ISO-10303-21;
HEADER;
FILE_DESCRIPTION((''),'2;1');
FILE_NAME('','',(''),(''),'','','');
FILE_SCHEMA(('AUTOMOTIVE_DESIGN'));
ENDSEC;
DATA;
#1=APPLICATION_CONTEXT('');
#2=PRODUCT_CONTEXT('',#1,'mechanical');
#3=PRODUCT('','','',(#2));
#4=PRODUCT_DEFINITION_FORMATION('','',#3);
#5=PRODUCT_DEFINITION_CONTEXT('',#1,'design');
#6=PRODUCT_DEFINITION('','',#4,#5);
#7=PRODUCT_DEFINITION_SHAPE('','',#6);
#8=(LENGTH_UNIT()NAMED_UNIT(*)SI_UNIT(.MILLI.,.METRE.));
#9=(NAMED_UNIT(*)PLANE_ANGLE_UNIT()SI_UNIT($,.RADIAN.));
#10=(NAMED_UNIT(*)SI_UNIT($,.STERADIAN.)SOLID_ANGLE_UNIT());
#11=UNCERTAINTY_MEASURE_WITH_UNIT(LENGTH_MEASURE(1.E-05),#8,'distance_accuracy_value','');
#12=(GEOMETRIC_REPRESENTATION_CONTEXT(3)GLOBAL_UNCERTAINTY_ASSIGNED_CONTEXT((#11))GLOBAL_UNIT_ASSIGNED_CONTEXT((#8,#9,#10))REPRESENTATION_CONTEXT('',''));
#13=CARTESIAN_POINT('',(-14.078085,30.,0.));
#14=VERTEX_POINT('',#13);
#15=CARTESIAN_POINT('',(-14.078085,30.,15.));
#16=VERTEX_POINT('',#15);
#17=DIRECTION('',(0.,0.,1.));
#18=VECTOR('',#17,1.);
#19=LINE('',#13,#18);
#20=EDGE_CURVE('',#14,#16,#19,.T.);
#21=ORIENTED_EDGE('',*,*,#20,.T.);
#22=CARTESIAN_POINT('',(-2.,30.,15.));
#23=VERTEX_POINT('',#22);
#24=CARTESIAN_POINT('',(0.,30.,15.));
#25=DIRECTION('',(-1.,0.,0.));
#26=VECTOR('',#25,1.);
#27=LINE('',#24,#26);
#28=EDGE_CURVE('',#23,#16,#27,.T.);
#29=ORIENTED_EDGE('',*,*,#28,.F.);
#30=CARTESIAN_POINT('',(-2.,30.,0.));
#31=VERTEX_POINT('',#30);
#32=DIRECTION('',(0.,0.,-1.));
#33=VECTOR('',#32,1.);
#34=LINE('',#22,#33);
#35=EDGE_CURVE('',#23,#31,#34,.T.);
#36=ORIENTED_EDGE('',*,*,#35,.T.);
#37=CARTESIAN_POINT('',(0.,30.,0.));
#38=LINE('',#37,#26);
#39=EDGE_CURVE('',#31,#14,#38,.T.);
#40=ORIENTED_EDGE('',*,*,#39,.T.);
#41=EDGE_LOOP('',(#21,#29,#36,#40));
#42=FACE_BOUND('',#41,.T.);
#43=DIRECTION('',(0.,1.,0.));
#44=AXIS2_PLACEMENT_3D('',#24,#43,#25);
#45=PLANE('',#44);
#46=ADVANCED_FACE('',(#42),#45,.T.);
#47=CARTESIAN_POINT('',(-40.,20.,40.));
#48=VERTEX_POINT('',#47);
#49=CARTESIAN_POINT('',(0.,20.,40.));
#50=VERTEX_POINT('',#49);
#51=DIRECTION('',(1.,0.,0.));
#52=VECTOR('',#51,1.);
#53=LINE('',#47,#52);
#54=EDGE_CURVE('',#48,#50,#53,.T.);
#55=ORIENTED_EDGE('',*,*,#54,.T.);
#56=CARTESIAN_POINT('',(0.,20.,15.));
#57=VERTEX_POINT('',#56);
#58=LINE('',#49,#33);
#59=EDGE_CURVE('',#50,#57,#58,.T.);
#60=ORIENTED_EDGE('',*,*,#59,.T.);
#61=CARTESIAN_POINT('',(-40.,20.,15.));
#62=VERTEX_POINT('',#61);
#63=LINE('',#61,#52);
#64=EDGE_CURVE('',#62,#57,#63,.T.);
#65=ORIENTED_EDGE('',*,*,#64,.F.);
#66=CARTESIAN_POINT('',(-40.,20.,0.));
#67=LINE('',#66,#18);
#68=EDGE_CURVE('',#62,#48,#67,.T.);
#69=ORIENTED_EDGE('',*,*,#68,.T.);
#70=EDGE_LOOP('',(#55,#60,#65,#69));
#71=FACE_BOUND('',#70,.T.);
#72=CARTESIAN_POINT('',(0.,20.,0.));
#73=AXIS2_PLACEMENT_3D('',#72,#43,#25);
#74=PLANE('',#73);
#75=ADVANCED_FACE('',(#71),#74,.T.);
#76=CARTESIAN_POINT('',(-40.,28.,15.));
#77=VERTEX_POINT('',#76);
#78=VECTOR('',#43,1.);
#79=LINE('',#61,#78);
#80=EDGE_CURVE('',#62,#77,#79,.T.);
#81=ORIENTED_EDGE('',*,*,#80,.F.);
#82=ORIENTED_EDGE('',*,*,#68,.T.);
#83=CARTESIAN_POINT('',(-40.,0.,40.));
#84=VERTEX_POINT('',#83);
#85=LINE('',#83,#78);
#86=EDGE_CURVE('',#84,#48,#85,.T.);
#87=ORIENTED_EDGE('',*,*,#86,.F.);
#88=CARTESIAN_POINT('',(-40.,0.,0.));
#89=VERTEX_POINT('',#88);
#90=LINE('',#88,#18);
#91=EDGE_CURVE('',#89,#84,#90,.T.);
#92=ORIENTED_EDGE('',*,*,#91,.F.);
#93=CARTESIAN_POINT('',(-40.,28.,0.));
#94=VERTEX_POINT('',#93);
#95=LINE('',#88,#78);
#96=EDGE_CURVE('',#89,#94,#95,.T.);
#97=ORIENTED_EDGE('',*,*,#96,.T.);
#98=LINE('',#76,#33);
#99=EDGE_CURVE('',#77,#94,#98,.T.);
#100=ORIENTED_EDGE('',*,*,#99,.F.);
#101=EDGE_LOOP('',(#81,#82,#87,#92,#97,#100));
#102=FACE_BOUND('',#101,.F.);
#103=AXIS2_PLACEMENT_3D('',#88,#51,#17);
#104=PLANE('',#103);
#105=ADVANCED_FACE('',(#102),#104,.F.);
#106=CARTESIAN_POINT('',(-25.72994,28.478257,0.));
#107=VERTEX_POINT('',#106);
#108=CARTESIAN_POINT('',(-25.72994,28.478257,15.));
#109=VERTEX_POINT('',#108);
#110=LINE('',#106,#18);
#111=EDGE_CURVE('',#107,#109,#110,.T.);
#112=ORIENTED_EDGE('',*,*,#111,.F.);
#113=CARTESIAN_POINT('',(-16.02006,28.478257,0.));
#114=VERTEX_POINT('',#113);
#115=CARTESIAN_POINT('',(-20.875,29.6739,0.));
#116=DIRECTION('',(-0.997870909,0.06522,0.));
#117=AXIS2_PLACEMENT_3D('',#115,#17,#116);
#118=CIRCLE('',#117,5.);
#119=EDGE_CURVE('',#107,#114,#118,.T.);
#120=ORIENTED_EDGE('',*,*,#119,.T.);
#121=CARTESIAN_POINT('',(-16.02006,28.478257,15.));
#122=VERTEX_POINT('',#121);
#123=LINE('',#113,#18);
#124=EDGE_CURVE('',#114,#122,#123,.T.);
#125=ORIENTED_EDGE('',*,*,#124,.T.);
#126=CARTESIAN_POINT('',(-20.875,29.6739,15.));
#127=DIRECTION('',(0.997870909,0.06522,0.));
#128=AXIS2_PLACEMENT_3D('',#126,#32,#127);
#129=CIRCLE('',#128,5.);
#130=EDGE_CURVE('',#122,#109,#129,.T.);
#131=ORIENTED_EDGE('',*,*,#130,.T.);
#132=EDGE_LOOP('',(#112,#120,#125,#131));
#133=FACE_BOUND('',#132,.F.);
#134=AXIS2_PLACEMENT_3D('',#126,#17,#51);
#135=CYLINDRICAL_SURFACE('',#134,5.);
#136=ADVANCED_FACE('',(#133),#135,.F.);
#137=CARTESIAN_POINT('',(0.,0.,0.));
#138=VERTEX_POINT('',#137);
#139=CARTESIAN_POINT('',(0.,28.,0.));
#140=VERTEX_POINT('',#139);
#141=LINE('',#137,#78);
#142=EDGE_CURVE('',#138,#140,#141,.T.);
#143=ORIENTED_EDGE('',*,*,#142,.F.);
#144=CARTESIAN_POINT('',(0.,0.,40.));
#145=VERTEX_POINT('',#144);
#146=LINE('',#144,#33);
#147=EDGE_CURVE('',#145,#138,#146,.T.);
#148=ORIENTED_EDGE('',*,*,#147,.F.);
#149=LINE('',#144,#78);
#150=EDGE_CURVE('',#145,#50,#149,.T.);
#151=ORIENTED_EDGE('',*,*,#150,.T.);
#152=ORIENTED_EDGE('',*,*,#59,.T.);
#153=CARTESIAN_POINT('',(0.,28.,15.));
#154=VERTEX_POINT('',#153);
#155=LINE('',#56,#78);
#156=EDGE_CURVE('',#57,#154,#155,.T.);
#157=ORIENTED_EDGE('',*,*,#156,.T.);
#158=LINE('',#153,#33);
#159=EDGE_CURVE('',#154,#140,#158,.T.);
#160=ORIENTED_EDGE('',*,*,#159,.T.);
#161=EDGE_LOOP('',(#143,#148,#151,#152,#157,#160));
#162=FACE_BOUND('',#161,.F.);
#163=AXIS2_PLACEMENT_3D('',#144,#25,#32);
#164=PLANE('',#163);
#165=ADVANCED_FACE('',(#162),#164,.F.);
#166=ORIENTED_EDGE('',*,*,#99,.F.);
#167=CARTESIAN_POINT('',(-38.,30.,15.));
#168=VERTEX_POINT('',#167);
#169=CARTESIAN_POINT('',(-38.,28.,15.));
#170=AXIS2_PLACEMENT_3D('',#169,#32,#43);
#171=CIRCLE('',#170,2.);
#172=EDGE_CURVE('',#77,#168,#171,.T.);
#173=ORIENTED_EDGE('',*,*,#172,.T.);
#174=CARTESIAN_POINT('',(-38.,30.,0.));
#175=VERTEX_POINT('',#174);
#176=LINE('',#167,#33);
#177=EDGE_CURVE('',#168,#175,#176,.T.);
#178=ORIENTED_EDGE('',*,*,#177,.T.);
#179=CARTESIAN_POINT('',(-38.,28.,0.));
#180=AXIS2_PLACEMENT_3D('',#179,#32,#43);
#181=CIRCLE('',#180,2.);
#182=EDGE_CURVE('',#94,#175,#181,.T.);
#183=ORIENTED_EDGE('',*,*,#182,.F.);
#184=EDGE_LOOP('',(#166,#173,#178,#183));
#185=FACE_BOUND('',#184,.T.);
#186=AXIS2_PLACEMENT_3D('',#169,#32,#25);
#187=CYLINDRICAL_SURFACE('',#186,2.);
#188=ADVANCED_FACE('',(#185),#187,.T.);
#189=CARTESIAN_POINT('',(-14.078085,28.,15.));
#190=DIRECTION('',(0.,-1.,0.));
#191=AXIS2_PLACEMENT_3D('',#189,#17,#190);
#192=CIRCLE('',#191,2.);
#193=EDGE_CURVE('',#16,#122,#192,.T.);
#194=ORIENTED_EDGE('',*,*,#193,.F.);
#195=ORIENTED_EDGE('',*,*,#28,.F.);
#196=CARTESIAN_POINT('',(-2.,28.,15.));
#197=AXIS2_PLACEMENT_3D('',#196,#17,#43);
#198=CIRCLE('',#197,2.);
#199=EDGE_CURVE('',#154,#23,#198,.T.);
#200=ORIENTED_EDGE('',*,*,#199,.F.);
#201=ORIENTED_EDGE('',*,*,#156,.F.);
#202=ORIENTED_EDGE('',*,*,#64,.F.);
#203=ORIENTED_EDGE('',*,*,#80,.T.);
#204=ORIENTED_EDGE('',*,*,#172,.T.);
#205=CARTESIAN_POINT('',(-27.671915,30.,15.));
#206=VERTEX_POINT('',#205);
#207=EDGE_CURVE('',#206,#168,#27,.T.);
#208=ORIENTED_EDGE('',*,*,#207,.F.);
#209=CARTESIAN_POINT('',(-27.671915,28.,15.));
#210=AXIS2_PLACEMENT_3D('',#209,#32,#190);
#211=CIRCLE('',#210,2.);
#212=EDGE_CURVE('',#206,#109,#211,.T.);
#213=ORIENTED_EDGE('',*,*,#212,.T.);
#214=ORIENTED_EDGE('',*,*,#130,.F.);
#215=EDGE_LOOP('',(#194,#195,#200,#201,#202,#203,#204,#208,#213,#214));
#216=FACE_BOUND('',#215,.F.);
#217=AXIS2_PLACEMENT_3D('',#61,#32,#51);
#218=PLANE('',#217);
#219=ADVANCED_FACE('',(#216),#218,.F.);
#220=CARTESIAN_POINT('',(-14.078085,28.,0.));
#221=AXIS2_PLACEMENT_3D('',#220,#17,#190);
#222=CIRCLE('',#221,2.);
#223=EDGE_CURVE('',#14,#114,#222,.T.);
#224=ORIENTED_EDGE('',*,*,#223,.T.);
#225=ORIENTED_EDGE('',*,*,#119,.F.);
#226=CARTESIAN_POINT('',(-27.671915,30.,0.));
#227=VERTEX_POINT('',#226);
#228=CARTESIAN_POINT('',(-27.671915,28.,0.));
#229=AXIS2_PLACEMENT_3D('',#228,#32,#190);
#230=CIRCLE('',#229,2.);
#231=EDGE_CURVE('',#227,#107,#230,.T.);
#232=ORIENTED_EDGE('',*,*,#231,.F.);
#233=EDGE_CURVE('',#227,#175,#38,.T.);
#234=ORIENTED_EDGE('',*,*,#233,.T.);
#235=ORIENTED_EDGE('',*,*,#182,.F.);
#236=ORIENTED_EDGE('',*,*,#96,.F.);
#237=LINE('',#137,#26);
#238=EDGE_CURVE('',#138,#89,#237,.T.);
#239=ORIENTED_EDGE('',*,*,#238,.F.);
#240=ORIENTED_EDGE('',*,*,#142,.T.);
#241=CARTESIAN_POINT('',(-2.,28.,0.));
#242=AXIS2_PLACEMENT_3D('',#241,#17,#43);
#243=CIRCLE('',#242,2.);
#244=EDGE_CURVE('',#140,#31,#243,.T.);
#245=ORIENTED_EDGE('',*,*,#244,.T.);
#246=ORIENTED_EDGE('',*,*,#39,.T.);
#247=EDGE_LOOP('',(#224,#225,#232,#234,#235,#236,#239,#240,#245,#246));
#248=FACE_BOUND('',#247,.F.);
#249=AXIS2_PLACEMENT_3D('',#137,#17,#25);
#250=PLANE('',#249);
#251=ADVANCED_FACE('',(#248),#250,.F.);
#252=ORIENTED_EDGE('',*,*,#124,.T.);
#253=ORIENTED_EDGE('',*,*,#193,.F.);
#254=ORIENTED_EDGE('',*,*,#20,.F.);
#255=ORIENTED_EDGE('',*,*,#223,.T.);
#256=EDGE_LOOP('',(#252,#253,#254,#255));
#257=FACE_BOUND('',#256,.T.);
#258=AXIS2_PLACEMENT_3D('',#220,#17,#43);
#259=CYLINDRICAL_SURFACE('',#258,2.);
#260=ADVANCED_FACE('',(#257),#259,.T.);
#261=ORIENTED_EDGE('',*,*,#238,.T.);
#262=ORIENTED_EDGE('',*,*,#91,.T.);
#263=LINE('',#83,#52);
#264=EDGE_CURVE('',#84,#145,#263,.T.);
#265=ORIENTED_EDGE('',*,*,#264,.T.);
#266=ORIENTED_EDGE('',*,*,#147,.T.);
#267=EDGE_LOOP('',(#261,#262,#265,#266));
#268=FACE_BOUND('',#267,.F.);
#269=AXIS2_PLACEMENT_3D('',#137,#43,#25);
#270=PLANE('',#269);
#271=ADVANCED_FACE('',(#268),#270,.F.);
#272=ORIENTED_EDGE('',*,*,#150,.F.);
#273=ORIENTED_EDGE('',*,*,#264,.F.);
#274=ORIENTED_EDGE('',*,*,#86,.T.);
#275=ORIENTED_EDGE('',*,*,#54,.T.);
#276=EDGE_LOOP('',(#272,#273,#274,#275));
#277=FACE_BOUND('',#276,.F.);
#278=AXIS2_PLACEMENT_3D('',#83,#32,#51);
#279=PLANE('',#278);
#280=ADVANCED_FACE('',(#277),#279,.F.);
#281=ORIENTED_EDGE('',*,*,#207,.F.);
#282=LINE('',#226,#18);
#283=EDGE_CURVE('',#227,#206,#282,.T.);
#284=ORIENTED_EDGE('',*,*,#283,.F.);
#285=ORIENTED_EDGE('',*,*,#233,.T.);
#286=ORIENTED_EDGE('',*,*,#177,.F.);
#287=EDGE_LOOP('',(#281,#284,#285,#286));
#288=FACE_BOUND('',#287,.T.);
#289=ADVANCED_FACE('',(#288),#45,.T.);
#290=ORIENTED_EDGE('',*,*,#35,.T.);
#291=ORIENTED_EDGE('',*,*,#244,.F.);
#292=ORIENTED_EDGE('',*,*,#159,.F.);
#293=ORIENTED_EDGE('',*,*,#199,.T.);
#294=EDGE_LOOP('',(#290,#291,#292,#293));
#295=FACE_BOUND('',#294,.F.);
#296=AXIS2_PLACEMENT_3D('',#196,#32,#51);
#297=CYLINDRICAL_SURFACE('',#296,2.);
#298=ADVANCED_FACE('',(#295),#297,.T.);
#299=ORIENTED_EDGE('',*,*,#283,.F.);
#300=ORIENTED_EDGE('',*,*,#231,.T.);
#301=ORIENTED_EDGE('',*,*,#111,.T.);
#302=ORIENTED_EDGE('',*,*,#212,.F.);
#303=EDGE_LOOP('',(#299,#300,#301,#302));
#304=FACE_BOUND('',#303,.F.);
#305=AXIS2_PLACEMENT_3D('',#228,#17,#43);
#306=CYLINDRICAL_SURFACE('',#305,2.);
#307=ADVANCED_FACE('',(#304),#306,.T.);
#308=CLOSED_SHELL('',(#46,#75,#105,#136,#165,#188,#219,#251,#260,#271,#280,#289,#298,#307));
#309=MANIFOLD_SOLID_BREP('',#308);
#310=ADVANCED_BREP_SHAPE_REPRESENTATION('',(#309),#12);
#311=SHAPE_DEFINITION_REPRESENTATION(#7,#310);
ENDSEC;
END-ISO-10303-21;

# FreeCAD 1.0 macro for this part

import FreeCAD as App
import Part
import Sketcher

V = App.Vector
Q = App.Units.Quantity


def edges_at(feature, points):
    """Names of the edges that pass closest to the given points."""
    edges = feature.Shape.Edges
    near = lambda p: min(range(len(edges)), key=lambda i: edges[i].distToShape(Part.Vertex(*p))[0])
    return sorted({f"Edge{near(p) + 1}" for p in points})


def add_polygon(sketch, points):
    """Adds a closed chain of lines whose ends are joined by coincident constraints."""
    first, n = sketch.GeometryCount, len(points)
    for a, b in zip(points, points[1:] + points[:1]):
        sketch.addGeometry(Part.LineSegment(App.Vector(*a, 0), App.Vector(*b, 0)), False)
    for i in range(n):
        sketch.addConstraint(Sketcher.Constraint("Coincident", first + i, 2, first + (i + 1) % n, 1))

doc = App.newDocument("Part")
params = doc.addObject("Spreadsheet::Sheet", "Params")
for row, (alias, value) in enumerate([
    ("sketch1_width", "40 mm"),
    ("pad1_length", "20 mm"),
    ("sketch2_height", "15 mm"),
    ("sketch2_width", "40 mm"),
    ("pad2_length", "20 mm"),
    ("sketch3_diameter", "10 mm"),
    ("pocket1_length", "20 mm"),
    ("sketch4_height", "10 mm"),
    ("sketch4_width", "40 mm"),
    ("pocket2_length", "20 mm"),
    ("fillet_radius", "2 mm"),
], start=1):
    params.set(f"A{row}", alias)
    params.set(f"B{row}", "=" + value)
    params.setAlias(f"B{row}", alias)

body = doc.addObject("PartDesign::Body", "Body")

sketch1 = body.newObject("Sketcher::SketchObject", "Sketch")
sketch1.AttachmentSupport = (doc.getObject("XZ_Plane"), [""])
sketch1.MapMode = "FlatFace"
add_polygon(sketch1, [(0, 40), (0, 0), (-40, 0), (-40, 40)])
sketch1.addConstraint([
    Sketcher.Constraint("Vertical", 0),
    Sketcher.Constraint("Horizontal", 1),
    Sketcher.Constraint("Vertical", 2),
    Sketcher.Constraint("Horizontal", 3),
    Sketcher.Constraint("Coincident", 0, 2, -1, 1),
    Sketcher.Constraint("Equal", 3, 0),
    Sketcher.Constraint("DistanceX", 1, 2, 1, 1, Q("40 mm")),
])
sketch1.setExpression("Constraints[10]", "Params.sketch1_width")
pad1 = body.newObject("PartDesign::Pad", "Pad")
pad1.Profile = sketch1
pad1.setExpression("Length", "Params.pad1_length")
pad1.Reversed = True

sketch2 = body.newObject("Sketcher::SketchObject", "Sketch001")
sketch2.AttachmentSupport = (doc.getObject("XZ_Plane"), [""])
sketch2.MapMode = "FlatFace"
sketch2.AttachmentOffset = App.Placement(V(0, 0, -20), App.Rotation())
add_polygon(sketch2, [(-40, 15), (0, 15), (0, 0), (-40, 0)])
sketch2.addConstraint([
    Sketcher.Constraint("Horizontal", 0),
    Sketcher.Constraint("Vertical", 1),
    Sketcher.Constraint("Horizontal", 2),
    Sketcher.Constraint("Vertical", 3),
    Sketcher.Constraint("Coincident", 1, 2, -1, 1),
    Sketcher.Constraint("DistanceY", 1, 2, 1, 1, Q("15 mm")),
    Sketcher.Constraint("DistanceX", 0, 1, 0, 2, Q("40 mm")),
])
sketch2.setExpression("Constraints[9]", "Params.sketch2_height")
sketch2.setExpression("Constraints[10]", "Params.sketch2_width")
pad2 = body.newObject("PartDesign::Pad", "Pad001")
pad2.Profile = sketch2
pad2.setExpression("Length", "Params.pad2_length")
pad2.Reversed = True

sketch3 = body.newObject("Sketcher::SketchObject", "Sketch002")
sketch3.AttachmentSupport = (doc.getObject("XY_Plane"), [""])
sketch3.MapMode = "FlatFace"
sketch3.AttachmentOffset = App.Placement(V(0, 0, 15), App.Rotation())
sketch3.addGeometry(Part.Circle(V(-21, 30, 0), V(0, 0, 1), 5), False)
sketch3.addConstraint([
    Sketcher.Constraint("Diameter", 0, Q("10 mm")),
    Sketcher.Constraint("DistanceX", 0, 3, -1, 1, Q("20.875 mm")),
    Sketcher.Constraint("DistanceY", -1, 1, 0, 3, Q("29.674 mm")),
])
sketch3.setExpression("Constraints[0]", "Params.sketch3_diameter")
pocket1 = body.newObject("PartDesign::Pocket", "Pocket")
pocket1.Profile = sketch3
pocket1.setExpression("Length", "Params.pocket1_length")

sketch4 = body.newObject("Sketcher::SketchObject", "Sketch003")
sketch4.AttachmentSupport = (doc.getObject("XY_Plane"), [""])
sketch4.MapMode = "FlatFace"
sketch4.AttachmentOffset = App.Placement(V(0, 0, 15), App.Rotation())
add_polygon(sketch4, [(0, 30), (0, 40), (-40, 40), (-40, 30)])
sketch4.addConstraint([
    Sketcher.Constraint("Vertical", 0),
    Sketcher.Constraint("Horizontal", 1),
    Sketcher.Constraint("Vertical", 2),
    Sketcher.Constraint("Horizontal", 3),
    Sketcher.Constraint("PointOnObject", 0, 2, -2),
    Sketcher.Constraint("DistanceY", 0, 1, 0, 2, Q("10 mm")),
    Sketcher.Constraint("DistanceX", 1, 2, 1, 1, Q("40 mm")),
    Sketcher.Constraint("DistanceY", -1, 1, 0, 2, Q("40 mm")),
])
sketch4.setExpression("Constraints[9]", "Params.sketch4_height")
sketch4.setExpression("Constraints[10]", "Params.sketch4_width")
pocket2 = body.newObject("PartDesign::Pocket", "Pocket001")
pocket2.Profile = sketch4
pocket2.setExpression("Length", "Params.pocket2_length")
doc.recompute()

fillet = body.newObject("PartDesign::Fillet", "Fillet")
fillet.Base = (pocket2, edges_at(pocket2, [
    (-40, 30, 7.5),
    (-25.864, 30, 7.5),
    (-15.886, 30, 7.5),
    (0, 30, 7.5),
]))
fillet.setExpression("Radius", "Params.fillet_radius")

doc.recompute()
